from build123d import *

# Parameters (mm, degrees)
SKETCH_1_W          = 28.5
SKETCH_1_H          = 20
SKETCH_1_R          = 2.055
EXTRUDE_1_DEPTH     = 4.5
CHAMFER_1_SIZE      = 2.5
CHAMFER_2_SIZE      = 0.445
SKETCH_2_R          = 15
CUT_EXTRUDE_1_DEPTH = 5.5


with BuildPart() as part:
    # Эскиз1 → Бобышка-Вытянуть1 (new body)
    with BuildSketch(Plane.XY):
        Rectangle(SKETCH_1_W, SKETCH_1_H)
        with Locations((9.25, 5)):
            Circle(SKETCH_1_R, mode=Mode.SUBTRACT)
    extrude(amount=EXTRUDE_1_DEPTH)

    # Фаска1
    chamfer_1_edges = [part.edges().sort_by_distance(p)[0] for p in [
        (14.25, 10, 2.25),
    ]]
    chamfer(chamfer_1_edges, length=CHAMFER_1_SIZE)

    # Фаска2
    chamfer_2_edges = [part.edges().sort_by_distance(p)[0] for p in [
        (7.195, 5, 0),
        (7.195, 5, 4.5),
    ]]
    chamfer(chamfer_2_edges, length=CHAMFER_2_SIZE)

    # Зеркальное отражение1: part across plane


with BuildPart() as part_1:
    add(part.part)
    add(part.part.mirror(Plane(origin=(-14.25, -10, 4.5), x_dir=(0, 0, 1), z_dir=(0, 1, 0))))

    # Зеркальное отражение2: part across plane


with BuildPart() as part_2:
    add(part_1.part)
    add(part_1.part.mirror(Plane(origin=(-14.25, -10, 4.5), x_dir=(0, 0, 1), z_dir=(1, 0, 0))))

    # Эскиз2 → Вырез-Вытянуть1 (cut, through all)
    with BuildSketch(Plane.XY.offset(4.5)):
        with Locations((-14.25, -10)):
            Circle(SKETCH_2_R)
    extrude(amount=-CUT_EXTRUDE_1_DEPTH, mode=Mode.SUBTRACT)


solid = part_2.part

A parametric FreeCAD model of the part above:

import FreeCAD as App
import Part
import Sketcher
from FreeCAD import Vector
Q = App.Units.Quantity


def edges_at(feature, points):
    """Names of the edges that pass closest to the given points."""
    edges = feature.Shape.Edges
    near = lambda p: min(range(len(edges)), key=lambda i: edges[i].distToShape(Part.Vertex(*p))[0])
    return sorted({f"Edge{near(p) + 1}" for p in points})

doc = App.newDocument("Part")
body = doc.addObject("PartDesign::Body", "Body")

sketch1 = body.newObject("Sketcher::SketchObject", "Sketch")
sketch1.AttachmentSupport = (doc.getObject("XY_Plane"), [""])
sketch1.MapMode = "FlatFace"
sketch1.addGeometry([
    Part.LineSegment(Vector(-14.25, 10, 0), Vector(-14.25, -10, 0)),
    Part.LineSegment(Vector(-14.25, -10, 0), Vector(14.25, -10, 0)),
    Part.LineSegment(Vector(14.25, -10, 0), Vector(14.25, 10, 0)),
    Part.LineSegment(Vector(14.25, 10, 0), Vector(-14.25, 10, 0)),
    Part.Circle(Vector(9.25, 5, 0), Vector(0, 0, 1), 2.055),
], False)
sketch1.addConstraint([
    Sketcher.Constraint("Coincident", 0, 2, 1, 1),
    Sketcher.Constraint("Coincident", 1, 2, 2, 1),
    Sketcher.Constraint("Coincident", 2, 2, 3, 1),
    Sketcher.Constraint("Coincident", 3, 2, 0, 1),
    Sketcher.Constraint("Vertical", 0),
    Sketcher.Constraint("Horizontal", 1),
    Sketcher.Constraint("Vertical", 2),
    Sketcher.Constraint("Horizontal", 3),
    Sketcher.Constraint("Symmetric", 0, 2, 2, 2, -1, 1),
    Sketcher.Constraint("Diameter", 4, Q("4.11 mm")),
    Sketcher.Constraint("DistanceY", 0, 2, 0, 1, Q("20 mm")),
    Sketcher.Constraint("DistanceX", 1, 1, 1, 2, Q("28.5 mm")),
    Sketcher.Constraint("DistanceY", -1, 1, 4, 3, Q("5 mm")),
    Sketcher.Constraint("DistanceX", 4, 3, 1, 2, Q("5 mm")),
])
pad1 = body.newObject("PartDesign::Pad", "Pad")
pad1.Profile = sketch1
pad1.Length = 4.5
doc.recompute()

chamfer = body.newObject("PartDesign::Chamfer", "Chamfer")
chamfer.Base = (pad1, edges_at(pad1, [(14.25, 10, 2.25)]))
chamfer.Size = 2.5
doc.recompute()

chamfer2 = body.newObject("PartDesign::Chamfer", "Chamfer001")
chamfer2.Base = (chamfer, edges_at(chamfer, [(7.195, 5, 0), (7.195, 5, 4.5)]))
chamfer2.Size = 0.445
body2 = doc.addObject("PartDesign::Body", "Body001")
doc.recompute()

body2.BaseFeature = body
doc.recompute()

mirroring = doc.addObject("Part::Mirroring", "Mirroring")
mirroring.Source = body
mirroring.Base = Vector(-14.25, -10, 4.5)
mirroring.Normal = Vector(0, 1, 0)
body3 = doc.addObject("PartDesign::Body", "Body002")
body3.BaseFeature = mirroring
boolean = body2.newObject("PartDesign::Boolean", "Boolean")
boolean.Type = "Fuse"
boolean.addObjects([body3])
doc.recompute()
body4 = doc.addObject("PartDesign::Body", "Body003")
doc.recompute()

body4.BaseFeature = body2
doc.recompute()

mirroring2 = doc.addObject("Part::Mirroring", "Mirroring001")
mirroring2.Source = body2
mirroring2.Base = Vector(-14.25, -10, 4.5)
mirroring2.Normal = Vector(1, 0, 0)
body5 = doc.addObject("PartDesign::Body", "Body004")
body5.BaseFeature = mirroring2
boolean2 = body4.newObject("PartDesign::Boolean", "Boolean001")
boolean2.Type = "Fuse"
boolean2.addObjects([body5])
doc.recompute()

sketch2 = body4.newObject("Sketcher::SketchObject", "Sketch001")
sketch2.AttachmentSupport = (doc.getObject("XY_Plane003"), [""])
sketch2.MapMode = "FlatFace"
sketch2.AttachmentOffset = App.Placement(Vector(0, 0, 4.5), App.Rotation())
sketch2.addGeometry(Part.Circle(Vector(-14.25, -10, 0), Vector(0, 0, 1), 15), False)
sketch2.addConstraint([
    Sketcher.Constraint("Diameter", 0, Q("30 mm")),
    Sketcher.Constraint("DistanceY", 0, 3, -1, 1, Q("10 mm")),
    Sketcher.Constraint("DistanceX", 0, 3, -1, 1, Q("14.25 mm")),
])
pocket1 = body4.newObject("PartDesign::Pocket", "Pocket")
pocket1.Profile = sketch2
pocket1.Type = "ThroughAll"
mirroring.Visibility = False
mirroring2.Visibility = False

doc.recompute()
